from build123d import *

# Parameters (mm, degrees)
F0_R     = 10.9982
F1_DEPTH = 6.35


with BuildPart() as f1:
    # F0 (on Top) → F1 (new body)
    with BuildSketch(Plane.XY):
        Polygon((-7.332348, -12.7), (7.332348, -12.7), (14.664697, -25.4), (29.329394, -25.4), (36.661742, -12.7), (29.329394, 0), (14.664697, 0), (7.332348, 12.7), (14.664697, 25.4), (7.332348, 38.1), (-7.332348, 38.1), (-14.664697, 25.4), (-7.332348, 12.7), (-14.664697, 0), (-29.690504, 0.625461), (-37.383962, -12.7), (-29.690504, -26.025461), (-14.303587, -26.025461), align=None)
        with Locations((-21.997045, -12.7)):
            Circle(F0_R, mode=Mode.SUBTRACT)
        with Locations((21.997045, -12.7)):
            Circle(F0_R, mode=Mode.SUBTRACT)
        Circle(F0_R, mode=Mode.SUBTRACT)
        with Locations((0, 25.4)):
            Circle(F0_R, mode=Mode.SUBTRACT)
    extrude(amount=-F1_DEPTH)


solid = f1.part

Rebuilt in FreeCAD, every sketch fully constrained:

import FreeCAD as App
import Part
import Sketcher

V = App.Vector
Q = App.Units.Quantity

doc = App.newDocument("Part")
body = doc.addObject("PartDesign::Body", "Body")

# Sketch on XY plane
sketch1 = doc.addObject("Sketcher::SketchObject", "Sketch")
body.addObject(sketch1)
sketch1.AttachmentSupport = (doc.XY_Plane, [""])
sketch1.MapMode = "FlatFace"
sketch1.addGeometry(Part.LineSegment(V(-7, -13, 0), V(7, -13, 0)), False)
sketch1.addGeometry(Part.LineSegment(V(7, -13, 0), V(15, -25, 0)), False)
sketch1.addGeometry(Part.LineSegment(V(15, -25, 0), V(29, -25, 0)), False)
sketch1.addGeometry(Part.LineSegment(V(29, -25, 0), V(37, -13, 0)), False)
sketch1.addGeometry(Part.LineSegment(V(37, -13, 0), V(29, 0, 0)), False)
sketch1.addGeometry(Part.LineSegment(V(29, 0, 0), V(15, 0, 0)), False)
sketch1.addGeometry(Part.LineSegment(V(15, 0, 0), V(7, 13, 0)), False)
sketch1.addGeometry(Part.LineSegment(V(7, 13, 0), V(15, 25, 0)), False)
sketch1.addGeometry(Part.LineSegment(V(15, 25, 0), V(7, 38, 0)), False)
sketch1.addGeometry(Part.LineSegment(V(7, 38, 0), V(-7, 38, 0)), False)
sketch1.addGeometry(Part.LineSegment(V(-7, 38, 0), V(-15, 25, 0)), False)
sketch1.addGeometry(Part.LineSegment(V(-15, 25, 0), V(-7, 13, 0)), False)
sketch1.addGeometry(Part.LineSegment(V(-7, 13, 0), V(-15, 0, 0)), False)
sketch1.addGeometry(Part.LineSegment(V(-15, 0, 0), V(-30, 1, 0)), False)
sketch1.addGeometry(Part.LineSegment(V(-30, 1, 0), V(-37, -13, 0)), False)
sketch1.addGeometry(Part.LineSegment(V(-37, -13, 0), V(-30, -26, 0)), False)
sketch1.addGeometry(Part.LineSegment(V(-30, -26, 0), V(-14, -26, 0)), False)
sketch1.addGeometry(Part.LineSegment(V(-14, -26, 0), V(-7, -13, 0)), False)
sketch1.addGeometry(Part.Circle(V(-22, -13, 0), V(0, 0, 1), 11), False)
sketch1.addGeometry(Part.Circle(V(22, -13, 0), V(0, 0, 1), 11), False)
sketch1.addGeometry(Part.Circle(V(0, 0, 0), V(0, 0, 1), 11), False)
sketch1.addGeometry(Part.Circle(V(0, 25, 0), V(0, 0, 1), 11), False)
sketch1.addConstraint(Sketcher.Constraint("Coincident", 0, 2, 1, 1))
sketch1.addConstraint(Sketcher.Constraint("Coincident", 1, 2, 2, 1))
sketch1.addConstraint(Sketcher.Constraint("Coincident", 2, 2, 3, 1))
sketch1.addConstraint(Sketcher.Constraint("Coincident", 3, 2, 4, 1))
sketch1.addConstraint(Sketcher.Constraint("Coincident", 4, 2, 5, 1))
sketch1.addConstraint(Sketcher.Constraint("Coincident", 5, 2, 6, 1))
sketch1.addConstraint(Sketcher.Constraint("Coincident", 6, 2, 7, 1))
sketch1.addConstraint(Sketcher.Constraint("Coincident", 7, 2, 8, 1))
sketch1.addConstraint(Sketcher.Constraint("Coincident", 8, 2, 9, 1))
sketch1.addConstraint(Sketcher.Constraint("Coincident", 9, 2, 10, 1))
sketch1.addConstraint(Sketcher.Constraint("Coincident", 10, 2, 11, 1))
sketch1.addConstraint(Sketcher.Constraint("Coincident", 11, 2, 12, 1))
sketch1.addConstraint(Sketcher.Constraint("Coincident", 12, 2, 13, 1))
sketch1.addConstraint(Sketcher.Constraint("Coincident", 13, 2, 14, 1))
sketch1.addConstraint(Sketcher.Constraint("Coincident", 14, 2, 15, 1))
sketch1.addConstraint(Sketcher.Constraint("Coincident", 15, 2, 16, 1))
sketch1.addConstraint(Sketcher.Constraint("Coincident", 16, 2, 17, 1))
sketch1.addConstraint(Sketcher.Constraint("Coincident", 17, 2, 0, 1))
sketch1.addConstraint(Sketcher.Constraint("Horizontal", 0))
sketch1.addConstraint(Sketcher.Constraint("Horizontal", 2))
sketch1.addConstraint(Sketcher.Constraint("Horizontal", 5))
sketch1.addConstraint(Sketcher.Constraint("Horizontal", 9))
sketch1.addConstraint(Sketcher.Constraint("Horizontal", 16))
sketch1.addConstraint(Sketcher.Constraint("Coincident", 20, 3, -1, 1))
sketch1.addConstraint(Sketcher.Constraint("Equal", 18, 19))
sketch1.addConstraint(Sketcher.Constraint("Equal", 19, 20))
sketch1.addConstraint(Sketcher.Constraint("Equal", 20, 21))
sketch1.addConstraint(Sketcher.Constraint("Symmetric", 1, 2, 10, 2, -1, 1))
sketch1.addConstraint(Sketcher.Constraint("Symmetric", 0, 2, 11, 2, -1, 1))
sketch1.addConstraint(Sketcher.Constraint("Symmetric", 5, 2, 12, 2, -1, 1))
sketch1.addConstraint(Sketcher.Constraint("Symmetric", 6, 2, 17, 2, -1, 1))
sketch1.addConstraint(Sketcher.Constraint("Symmetric", 18, 3, 19, 3, -2))
sketch1.addConstraint(Sketcher.Constraint("Symmetric", 7, 2, 10, 2, -2))
sketch1.addConstraint(Sketcher.Constraint("PointOnObject", 21, 3, -2))
sketch1.addConstraint(Sketcher.Constraint("PointOnObject", 4, 2, -1))
sketch1.addConstraint(Sketcher.Constraint("Parallel", 1, 4))
sketch1.addConstraint(Sketcher.Constraint("Parallel", 4, 6))
sketch1.addConstraint(Sketcher.Constraint("Parallel", 3, 7))
sketch1.addConstraint(Sketcher.Constraint("Parallel", 6, 8))
sketch1.addConstraint(Sketcher.Constraint("Parallel", 7, 10))
sketch1.addConstraint(Sketcher.Constraint("Parallel", 10, 12))
sketch1.addConstraint(Sketcher.Constraint("Parallel", 12, 14))
sketch1.addConstraint(Sketcher.Constraint("Parallel", 11, 15))
sketch1.addConstraint(Sketcher.Constraint("Horizontal", 19, 3, 0, 2))
sketch1.addConstraint(Sketcher.Constraint("Horizontal", 0, 2, 3, 2))
sketch1.addConstraint(Sketcher.Constraint("Horizontal", 21, 3, 7, 2))
sketch1.addConstraint(Sketcher.Constraint("Horizontal", 3, 2, 14, 2))
sketch1.addConstraint(Sketcher.Constraint("Vertical", 2, 2, 4, 2))
sketch1.addConstraint(Sketcher.Constraint("Vertical", 6, 2, 8, 2))
sketch1.addConstraint(Sketcher.Constraint("Vertical", 13, 2, 15, 2))
sketch1.addConstraint(Sketcher.Constraint("Equal", 0, 2))
sketch1.addConstraint(Sketcher.Constraint("Equal", 13, 17))
sketch1.addConstraint(Sketcher.Constraint("Diameter", 18, Q("0.866 in")))
sketch1.addConstraint(Sketcher.Constraint("DistanceY", -1, 1, 21, 3, Q("1 in")))
sketch1.addConstraint(Sketcher.Constraint("Angle", 1, Q("-59.999998 deg")))
sketch1.addConstraint(Sketcher.Constraint("Distance", 13, Q("15.038819 mm")))
sketch1.addConstraint(Sketcher.Constraint("DistanceX", 0, 1, 0, 2, Q("14.664696 mm")))
sketch1.addConstraint(Sketcher.Constraint("DistanceX", 16, 1, 16, 2, Q("15.386917 mm")))
sketch1.addConstraint(Sketcher.Constraint("DistanceX", 18, 3, 19, 3, Q("43.99409 mm")))
pad1 = doc.addObject("PartDesign::Pad", "Pad")
body.addObject(pad1)
pad1.Profile = sketch1
pad1.Length = Q("0.25 in")
pad1.Reversed = True

doc.recompute()
